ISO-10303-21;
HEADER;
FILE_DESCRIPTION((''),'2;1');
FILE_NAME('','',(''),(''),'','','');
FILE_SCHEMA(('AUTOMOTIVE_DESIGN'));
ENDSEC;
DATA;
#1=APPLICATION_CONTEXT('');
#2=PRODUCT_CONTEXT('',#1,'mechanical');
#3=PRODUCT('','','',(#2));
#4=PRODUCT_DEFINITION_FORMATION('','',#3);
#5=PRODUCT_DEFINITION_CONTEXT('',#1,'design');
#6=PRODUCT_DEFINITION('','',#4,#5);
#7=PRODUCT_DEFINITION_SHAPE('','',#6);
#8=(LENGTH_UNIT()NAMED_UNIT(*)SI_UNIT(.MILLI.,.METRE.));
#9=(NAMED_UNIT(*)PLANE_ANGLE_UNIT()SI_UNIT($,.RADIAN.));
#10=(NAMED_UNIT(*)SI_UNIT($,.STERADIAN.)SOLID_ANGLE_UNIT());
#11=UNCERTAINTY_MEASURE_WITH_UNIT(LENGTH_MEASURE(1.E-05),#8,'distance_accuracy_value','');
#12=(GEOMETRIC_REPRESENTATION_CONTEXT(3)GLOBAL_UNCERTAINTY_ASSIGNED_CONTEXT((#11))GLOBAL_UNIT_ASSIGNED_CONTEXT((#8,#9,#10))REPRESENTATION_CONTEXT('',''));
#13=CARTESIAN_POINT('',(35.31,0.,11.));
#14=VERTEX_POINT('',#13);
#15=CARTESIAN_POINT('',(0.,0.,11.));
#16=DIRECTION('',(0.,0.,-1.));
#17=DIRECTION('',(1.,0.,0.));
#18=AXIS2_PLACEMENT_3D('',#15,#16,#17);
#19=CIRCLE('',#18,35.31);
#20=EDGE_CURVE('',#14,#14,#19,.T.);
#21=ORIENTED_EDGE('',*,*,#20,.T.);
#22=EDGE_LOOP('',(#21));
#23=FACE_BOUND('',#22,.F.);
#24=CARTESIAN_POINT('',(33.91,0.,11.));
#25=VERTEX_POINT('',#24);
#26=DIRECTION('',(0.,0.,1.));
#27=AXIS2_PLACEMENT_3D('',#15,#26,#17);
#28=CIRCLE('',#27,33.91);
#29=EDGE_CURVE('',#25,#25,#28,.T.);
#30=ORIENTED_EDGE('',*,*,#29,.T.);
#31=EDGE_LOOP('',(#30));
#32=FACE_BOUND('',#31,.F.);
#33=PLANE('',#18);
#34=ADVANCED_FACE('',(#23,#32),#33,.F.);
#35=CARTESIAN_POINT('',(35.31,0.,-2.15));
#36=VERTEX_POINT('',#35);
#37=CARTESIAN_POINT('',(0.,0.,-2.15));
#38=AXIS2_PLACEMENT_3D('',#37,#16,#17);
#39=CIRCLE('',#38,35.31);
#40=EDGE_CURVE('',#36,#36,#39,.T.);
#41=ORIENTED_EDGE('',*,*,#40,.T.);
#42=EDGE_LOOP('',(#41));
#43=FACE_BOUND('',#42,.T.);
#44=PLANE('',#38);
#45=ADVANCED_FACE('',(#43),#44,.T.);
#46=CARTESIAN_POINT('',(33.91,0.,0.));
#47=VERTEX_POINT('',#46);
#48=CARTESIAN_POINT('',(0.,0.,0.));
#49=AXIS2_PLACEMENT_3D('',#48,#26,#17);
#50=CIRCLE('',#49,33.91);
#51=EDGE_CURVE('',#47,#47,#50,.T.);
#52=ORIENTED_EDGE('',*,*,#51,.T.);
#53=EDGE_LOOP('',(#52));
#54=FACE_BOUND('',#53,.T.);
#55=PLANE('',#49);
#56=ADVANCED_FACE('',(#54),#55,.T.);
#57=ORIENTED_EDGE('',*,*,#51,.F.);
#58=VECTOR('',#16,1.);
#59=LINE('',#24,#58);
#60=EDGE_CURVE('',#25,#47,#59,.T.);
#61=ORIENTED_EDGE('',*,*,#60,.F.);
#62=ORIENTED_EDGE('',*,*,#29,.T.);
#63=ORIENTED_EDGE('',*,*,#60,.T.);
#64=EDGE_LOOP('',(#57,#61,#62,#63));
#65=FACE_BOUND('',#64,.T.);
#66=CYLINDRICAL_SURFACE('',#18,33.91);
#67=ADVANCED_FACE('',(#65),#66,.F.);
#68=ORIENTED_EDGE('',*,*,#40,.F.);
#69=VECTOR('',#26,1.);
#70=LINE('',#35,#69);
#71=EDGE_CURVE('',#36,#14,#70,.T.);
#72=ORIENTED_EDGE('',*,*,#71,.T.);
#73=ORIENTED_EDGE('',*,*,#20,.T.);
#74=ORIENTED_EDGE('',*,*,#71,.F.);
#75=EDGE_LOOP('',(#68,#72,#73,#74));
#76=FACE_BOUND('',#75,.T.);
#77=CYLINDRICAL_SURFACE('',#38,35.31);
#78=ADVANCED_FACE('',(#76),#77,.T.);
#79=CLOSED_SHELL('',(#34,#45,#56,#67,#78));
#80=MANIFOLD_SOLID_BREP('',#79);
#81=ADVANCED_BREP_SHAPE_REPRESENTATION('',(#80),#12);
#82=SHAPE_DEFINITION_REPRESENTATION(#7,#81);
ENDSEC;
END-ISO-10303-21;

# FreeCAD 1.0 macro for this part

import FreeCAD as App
import Part
import Sketcher

V = App.Vector


def add_polygon(sketch, points):
    """Adds a closed chain of lines whose ends are joined by coincident constraints."""
    first, n = sketch.GeometryCount, len(points)
    for a, b in zip(points, points[1:] + points[:1]):
        sketch.addGeometry(Part.LineSegment(App.Vector(*a, 0), App.Vector(*b, 0)), False)
    for i in range(n):
        sketch.addConstraint(Sketcher.Constraint("Coincident", first + i, 2, first + (i + 1) % n, 1))

doc = App.newDocument("Part")
params = doc.addObject("Spreadsheet::Sheet", "Params")
for row, (alias, value) in enumerate([
    ("sketch1_width", "1 mm"),
    ("sketch1_height", "11 mm"),
    ("sketch1_width2", "33.91 mm"),
    ("sketch1_height2", "2.15 mm"),
    ("revolution_angle", "360 deg"),
    ("sketch2_diameter", "70.62 mm"),
    ("sketch2_diameter2", "69.82 mm"),
    ("pad1_length", "13.15 mm"),
], start=1):
    params.set(f"A{row}", alias)
    params.set(f"B{row}", "=" + value)
    params.setAlias(f"B{row}", alias)

body = doc.addObject("PartDesign::Body", "Body")

# Sketch on XZ plane
sketch1 = doc.addObject("Sketcher::SketchObject", "Sketch")
body.addObject(sketch1)
sketch1.AttachmentSupport = (doc.XZ_Plane, [""])
sketch1.MapMode = "FlatFace"
add_polygon(sketch1, [(33.9, 11), (33.9, 0), (0, 0), (0, -2.1), (34.9, -2.1), (34.9, 11)])  # lines 0-5
sketch1.addConstraint([
    Sketcher.Constraint("Vertical", 0),
    Sketcher.Constraint("Horizontal", 1),
    Sketcher.Constraint("Vertical", 2),
    Sketcher.Constraint("Horizontal", 3),
    Sketcher.Constraint("Vertical", 4),
    Sketcher.Constraint("Horizontal", 5),
    Sketcher.Constraint("Coincident", 1, 2, -1, 1),
    Sketcher.Constraint("DistanceX", 5, 2, 5, 1, 1.0),
    Sketcher.Constraint("DistanceY", 0, 2, 0, 1, 11.0),
    Sketcher.Constraint("DistanceX", 1, 2, 1, 1, 33.91),
    Sketcher.Constraint("DistanceY", 2, 2, 2, 1, 2.15),
])
sketch1.setExpression("Constraints[13]", "Params.sketch1_width")
sketch1.setExpression("Constraints[14]", "Params.sketch1_height")
sketch1.setExpression("Constraints[15]", "Params.sketch1_width2")
sketch1.setExpression("Constraints[16]", "Params.sketch1_height2")
revolution = doc.addObject("PartDesign::Revolution", "Revolution")
body.addObject(revolution)
revolution.Profile = sketch1
revolution.ReferenceAxis = (sketch1, ["V_Axis"])
revolution.setExpression("Angle", "Params.revolution_angle")

# Sketch on XY plane
sketch2 = doc.addObject("Sketcher::SketchObject", "Sketch001")
body.addObject(sketch2)
sketch2.AttachmentSupport = (doc.XY_Plane, [""])
sketch2.MapMode = "FlatFace"
sketch2.AttachmentOffset = App.Placement(V(0, 0, -2.15), App.Rotation())
sketch2.addGeometry([
    Part.Circle(V(0, 0, 0), V(0, 0, 1), 35),
    Part.Circle(V(0, 0, 0), V(0, 0, 1), 35),
], False)
sketch2.addConstraint([
    Sketcher.Constraint("Coincident", 0, 3, -1, 1),
    Sketcher.Constraint("Coincident", 1, 3, -1, 1),
    Sketcher.Constraint("Diameter", 0, 70.62),
    Sketcher.Constraint("Diameter", 1, 69.82),
])
sketch2.setExpression("Constraints[2]", "Params.sketch2_diameter")
sketch2.setExpression("Constraints[3]", "Params.sketch2_diameter2")
pad1 = doc.addObject("PartDesign::Pad", "Pad")
body.addObject(pad1)
pad1.Profile = sketch2
pad1.setExpression("Length", "Params.pad1_length")

doc.recompute()
